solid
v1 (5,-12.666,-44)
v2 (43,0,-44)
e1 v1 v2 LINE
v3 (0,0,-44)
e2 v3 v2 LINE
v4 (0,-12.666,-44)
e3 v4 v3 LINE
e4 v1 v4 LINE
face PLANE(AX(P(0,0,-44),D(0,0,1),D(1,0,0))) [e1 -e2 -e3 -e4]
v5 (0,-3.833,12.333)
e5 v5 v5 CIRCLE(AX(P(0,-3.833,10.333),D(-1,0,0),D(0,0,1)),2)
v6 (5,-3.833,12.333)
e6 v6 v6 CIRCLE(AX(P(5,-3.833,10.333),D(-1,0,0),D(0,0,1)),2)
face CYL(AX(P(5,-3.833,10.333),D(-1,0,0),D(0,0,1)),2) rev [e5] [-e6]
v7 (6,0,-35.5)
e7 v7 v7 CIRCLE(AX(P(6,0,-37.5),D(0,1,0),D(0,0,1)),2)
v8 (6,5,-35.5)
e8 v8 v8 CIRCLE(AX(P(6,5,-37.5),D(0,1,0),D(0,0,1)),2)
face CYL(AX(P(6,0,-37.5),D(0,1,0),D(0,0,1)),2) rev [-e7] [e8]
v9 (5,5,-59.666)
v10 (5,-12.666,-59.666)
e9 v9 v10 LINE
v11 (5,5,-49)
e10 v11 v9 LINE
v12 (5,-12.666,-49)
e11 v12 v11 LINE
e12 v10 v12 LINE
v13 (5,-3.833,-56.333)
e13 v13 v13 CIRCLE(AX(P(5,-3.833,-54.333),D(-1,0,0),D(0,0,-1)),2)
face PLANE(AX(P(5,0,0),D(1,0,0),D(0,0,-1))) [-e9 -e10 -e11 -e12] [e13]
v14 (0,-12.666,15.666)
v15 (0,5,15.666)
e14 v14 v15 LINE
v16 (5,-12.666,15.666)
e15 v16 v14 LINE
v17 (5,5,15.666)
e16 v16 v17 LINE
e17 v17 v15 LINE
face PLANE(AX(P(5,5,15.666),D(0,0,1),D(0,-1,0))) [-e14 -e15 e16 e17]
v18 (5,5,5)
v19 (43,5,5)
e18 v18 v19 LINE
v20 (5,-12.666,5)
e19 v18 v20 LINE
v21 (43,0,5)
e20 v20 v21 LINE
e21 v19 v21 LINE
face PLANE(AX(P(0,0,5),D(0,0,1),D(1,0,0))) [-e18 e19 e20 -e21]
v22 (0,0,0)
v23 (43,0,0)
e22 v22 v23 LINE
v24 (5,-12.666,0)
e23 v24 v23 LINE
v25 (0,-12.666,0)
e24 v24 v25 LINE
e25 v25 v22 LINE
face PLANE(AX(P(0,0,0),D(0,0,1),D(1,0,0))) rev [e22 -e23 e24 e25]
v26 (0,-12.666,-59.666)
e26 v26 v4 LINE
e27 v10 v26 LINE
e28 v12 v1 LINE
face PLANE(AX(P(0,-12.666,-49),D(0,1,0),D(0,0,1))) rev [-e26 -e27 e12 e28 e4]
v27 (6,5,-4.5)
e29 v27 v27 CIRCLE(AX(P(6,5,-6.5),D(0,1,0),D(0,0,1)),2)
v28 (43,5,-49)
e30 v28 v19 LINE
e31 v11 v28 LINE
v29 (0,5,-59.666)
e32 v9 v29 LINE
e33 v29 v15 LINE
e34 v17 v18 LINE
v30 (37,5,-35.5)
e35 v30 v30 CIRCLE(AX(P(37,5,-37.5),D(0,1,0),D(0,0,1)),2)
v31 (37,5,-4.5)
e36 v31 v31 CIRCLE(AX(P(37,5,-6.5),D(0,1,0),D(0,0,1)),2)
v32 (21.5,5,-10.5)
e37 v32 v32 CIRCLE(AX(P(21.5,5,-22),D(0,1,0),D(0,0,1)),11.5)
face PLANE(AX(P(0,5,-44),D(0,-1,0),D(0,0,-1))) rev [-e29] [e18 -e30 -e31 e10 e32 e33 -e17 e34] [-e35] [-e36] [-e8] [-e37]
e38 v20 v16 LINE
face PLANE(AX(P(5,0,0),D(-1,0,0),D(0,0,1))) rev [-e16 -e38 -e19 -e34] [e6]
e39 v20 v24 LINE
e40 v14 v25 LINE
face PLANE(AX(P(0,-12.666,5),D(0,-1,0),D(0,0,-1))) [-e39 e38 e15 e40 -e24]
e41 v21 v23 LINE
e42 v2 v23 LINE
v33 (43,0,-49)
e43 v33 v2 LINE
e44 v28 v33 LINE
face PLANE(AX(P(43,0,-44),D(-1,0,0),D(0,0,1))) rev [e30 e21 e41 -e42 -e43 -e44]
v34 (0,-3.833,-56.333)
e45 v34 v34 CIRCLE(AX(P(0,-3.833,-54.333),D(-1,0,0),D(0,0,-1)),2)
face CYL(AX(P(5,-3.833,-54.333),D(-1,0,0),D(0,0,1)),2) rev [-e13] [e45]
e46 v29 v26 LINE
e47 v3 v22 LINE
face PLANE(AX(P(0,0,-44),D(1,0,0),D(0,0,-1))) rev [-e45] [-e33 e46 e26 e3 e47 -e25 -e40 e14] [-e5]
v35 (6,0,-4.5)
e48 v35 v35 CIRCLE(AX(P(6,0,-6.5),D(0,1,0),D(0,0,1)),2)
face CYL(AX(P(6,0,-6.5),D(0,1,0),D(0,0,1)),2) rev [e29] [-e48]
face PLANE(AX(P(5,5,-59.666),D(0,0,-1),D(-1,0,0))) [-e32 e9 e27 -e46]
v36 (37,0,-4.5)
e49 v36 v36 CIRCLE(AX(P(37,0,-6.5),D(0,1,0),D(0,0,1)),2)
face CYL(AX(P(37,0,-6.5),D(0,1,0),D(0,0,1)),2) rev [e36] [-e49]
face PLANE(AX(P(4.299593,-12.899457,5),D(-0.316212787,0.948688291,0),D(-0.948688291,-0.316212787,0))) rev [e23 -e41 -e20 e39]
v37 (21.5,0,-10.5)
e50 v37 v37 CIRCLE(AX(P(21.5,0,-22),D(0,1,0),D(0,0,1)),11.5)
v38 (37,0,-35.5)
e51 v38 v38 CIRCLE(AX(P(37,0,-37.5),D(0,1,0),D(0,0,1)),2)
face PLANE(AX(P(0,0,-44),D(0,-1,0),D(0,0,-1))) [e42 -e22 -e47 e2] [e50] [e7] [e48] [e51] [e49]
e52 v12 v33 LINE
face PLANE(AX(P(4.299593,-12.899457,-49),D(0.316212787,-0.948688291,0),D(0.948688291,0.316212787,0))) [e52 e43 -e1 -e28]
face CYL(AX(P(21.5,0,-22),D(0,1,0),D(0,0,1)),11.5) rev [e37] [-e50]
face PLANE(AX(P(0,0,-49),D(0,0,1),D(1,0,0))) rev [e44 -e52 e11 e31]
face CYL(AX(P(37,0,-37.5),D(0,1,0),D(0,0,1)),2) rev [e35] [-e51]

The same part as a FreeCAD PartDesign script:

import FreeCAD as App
import Part
import Sketcher
Q = App.Units.Quantity


def add_polygon(sketch, points):
    """Adds a closed chain of lines whose ends are joined by coincident constraints."""
    first, n = sketch.GeometryCount, len(points)
    for a, b in zip(points, points[1:] + points[:1]):
        sketch.addGeometry(Part.LineSegment(App.Vector(*a, 0), App.Vector(*b, 0)), False)
    for i in range(n):
        sketch.addConstraint(Sketcher.Constraint("Coincident", first + i, 2, first + (i + 1) % n, 1))

doc = App.newDocument("Part")
body = doc.addObject("PartDesign::Body", "Body")

# Sketch on XY plane
sketch1 = doc.addObject("Sketcher::SketchObject", "Sketch")
body.addObject(sketch1)
sketch1.AttachmentSupport = (doc.XY_Plane, [""])
sketch1.MapMode = "FlatFace"
add_polygon(sketch1, [(0, 5), (0, 0), (43, 0), (43, 5)])  # lines 0-3
sketch1.addConstraint([
    Sketcher.Constraint("Vertical", 0),
    Sketcher.Constraint("Horizontal", 1),
    Sketcher.Constraint("Vertical", 2),
    Sketcher.Constraint("Horizontal", 3),
    Sketcher.Constraint("Coincident", 0, 2, -1, 1),
    Sketcher.Constraint("DistanceX", 1, 1, 1, 2, Q("43 mm")),
    Sketcher.Constraint("DistanceY", 0, 2, 0, 1, Q("5 mm")),
])
pad1 = doc.addObject("PartDesign::Pad", "Pad")
body.addObject(pad1)
pad1.Profile = sketch1
pad1.Length = 44
pad1.Reversed = True

# Sketch on XZ plane
sketch2 = doc.addObject("Sketcher::SketchObject", "Sketch001")
body.addObject(sketch2)
sketch2.AttachmentSupport = (doc.XZ_Plane, [""])
sketch2.MapMode = "FlatFace"
sketch2.AttachmentOffset = App.Placement(App.Vector(0, 0, -5), App.Rotation())
sketch2.addGeometry([
    Part.Circle(App.Vector(21.5, -22, 0), App.Vector(0, 0, 1), 11.5),  # 0
    Part.Circle(App.Vector(37, -37.5, 0), App.Vector(0, 0, 1), 2),  # 1
    Part.Circle(App.Vector(6, -37.5, 0), App.Vector(0, 0, 1), 2),  # 2
    Part.Circle(App.Vector(6, -6.5, 0), App.Vector(0, 0, 1), 2),  # 3
    Part.Circle(App.Vector(37, -6.5, 0), App.Vector(0, 0, 1), 2),  # 4
], False)
sketch2.addConstraint([
    Sketcher.Constraint("Equal", 1, 2),
    Sketcher.Constraint("Equal", 2, 3),
    Sketcher.Constraint("Equal", 3, 4),
    Sketcher.Constraint("Horizontal", 1, 3, 2, 3),
    Sketcher.Constraint("Horizontal", 3, 3, 4, 3),
    Sketcher.Constraint("Vertical", 2, 3, 3, 3),
    Sketcher.Constraint("Vertical", 1, 3, 4, 3),
    Sketcher.Constraint("Diameter", 0, Q("23 mm")),
    Sketcher.Constraint("Diameter", 1, Q("4 mm")),
    Sketcher.Constraint("DistanceY", 0, 3, -1, 1, Q("22 mm")),
    Sketcher.Constraint("DistanceX", -1, 1, 1, 3, Q("37 mm")),
    Sketcher.Constraint("DistanceX", -1, 1, 2, 3, Q("6 mm")),
    Sketcher.Constraint("DistanceY", 2, 3, 3, 3, Q("31 mm")),
    Sketcher.Constraint("DistanceX", -1, 1, 0, 3, Q("21.5 mm")),
    Sketcher.Constraint("DistanceY", 1, 3, -1, 1, Q("37.5 mm")),
])
pocket1 = doc.addObject("PartDesign::Pocket", "Pocket")
body.addObject(pocket1)
pocket1.Profile = sketch2
pocket1.Type = "ThroughAll"
pocket1.Reversed = True

# Sketch on XY plane
sketch3 = doc.addObject("Sketcher::SketchObject", "Sketch002")
body.addObject(sketch3)
sketch3.AttachmentSupport = (doc.XY_Plane, [""])
sketch3.MapMode = "FlatFace"
add_polygon(sketch3, [(5, -12.666), (43, 0), (43, 5), (0, 5), (0, -12.666)])  # lines 0-4
sketch3.addConstraint([
    Sketcher.Constraint("Vertical", 1),
    Sketcher.Constraint("Horizontal", 2),
    Sketcher.Constraint("Vertical", 3),
    Sketcher.Constraint("Horizontal", 4),
    Sketcher.Constraint("PointOnObject", 0, 2, -1),
    Sketcher.Constraint("PointOnObject", 2, 2, -2),
    Sketcher.Constraint("Equal", 4, 1),
    Sketcher.Constraint("DistanceX", 2, 2, 2, 1, Q("43 mm")),
    Sketcher.Constraint("DistanceX", 4, 1, 4, 2, Q("5 mm")),
    Sketcher.Constraint("DistanceY", 3, 2, 3, 1, Q("17.666 mm")),
])
pad2 = doc.addObject("PartDesign::Pad", "Pad001")
body.addObject(pad2)
pad2.Profile = sketch3
pad2.Length = 5

# Sketch on XY plane
sketch4 = doc.addObject("Sketcher::SketchObject", "Sketch003")
body.addObject(sketch4)
sketch4.AttachmentSupport = (doc.XY_Plane, [""])
sketch4.MapMode = "FlatFace"
sketch4.AttachmentOffset = App.Placement(App.Vector(0, 0, -44), App.Rotation())
add_polygon(sketch4, [(0, 5), (0, -12.666), (5, -12.666), (43, 0), (43, 5)])  # lines 0-4
sketch4.addConstraint([
    Sketcher.Constraint("Vertical", 0),
    Sketcher.Constraint("Horizontal", 1),
    Sketcher.Constraint("Vertical", 3),
    Sketcher.Constraint("Horizontal", 4),
    Sketcher.Constraint("PointOnObject", 0, 2, -2),
    Sketcher.Constraint("PointOnObject", 2, 2, -1),
    Sketcher.Constraint("Equal", 1, 3),
    Sketcher.Constraint("DistanceX", 1, 1, 1, 2, Q("5 mm")),
    Sketcher.Constraint("DistanceX", 4, 2, 4, 1, Q("43 mm")),
    Sketcher.Constraint("DistanceY", 0, 2, 0, 1, Q("17.666 mm")),
])
pad3 = doc.addObject("PartDesign::Pad", "Pad002")
body.addObject(pad3)
pad3.Profile = sketch4
pad3.Length = 5
pad3.Reversed = True

# Sketch on YZ plane
sketch5 = doc.addObject("Sketcher::SketchObject", "Sketch004")
body.addObject(sketch5)
sketch5.AttachmentSupport = (doc.YZ_Plane, [""])
sketch5.MapMode = "FlatFace"
add_polygon(sketch5, [(5, 5), (-12.666, 5), (-12.666, 15.666), (5, 15.666)])  # lines 0-3
sketch5.addGeometry(Part.Circle(App.Vector(-3.833, 10.333, 0), App.Vector(0, 0, 1), 2), False)  # 4
add_polygon(sketch5, [(5, -59.666), (-12.666, -59.666), (-12.666, -49), (5, -49)])  # lines 5-8
sketch5.addGeometry(Part.Circle(App.Vector(-3.833, -54.333, 0), App.Vector(0, 0, 1), 2), False)  # 9
sketch5.addConstraint([
    Sketcher.Constraint("Horizontal", 0),
    Sketcher.Constraint("Vertical", 1),
    Sketcher.Constraint("Horizontal", 2),
    Sketcher.Constraint("Vertical", 3),
    Sketcher.Constraint("Horizontal", 5),
    Sketcher.Constraint("Vertical", 6),
    Sketcher.Constraint("Horizontal", 7),
    Sketcher.Constraint("Vertical", 8),
    Sketcher.Constraint("Equal", 4, 9),
    Sketcher.Constraint("Vertical", 4, 3, 9, 3),
    Sketcher.Constraint("Vertical", 1, 2, 5, 2),
    Sketcher.Constraint("Vertical", 3, 2, 7, 2),
    Sketcher.Constraint("Equal", 3, 6),
    Sketcher.Constraint("Diameter", 4, Q("4 mm")),
    Sketcher.Constraint("DistanceY", -1, 1, 0, 2, Q("5 mm")),
    Sketcher.Constraint("DistanceX", -1, 1, 2, 2, Q("5 mm")),
    Sketcher.Constraint("DistanceY", 6, 2, -1, 1, Q("49 mm")),
    Sketcher.Constraint("DistanceX", 0, 2, 0, 1, Q("17.666 mm")),
    Sketcher.Constraint("DistanceY", 1, 1, 1, 2, Q("10.666 mm")),
    Sketcher.Constraint("DistanceX", 4, 3, -1, 1, Q("3.833 mm")),
    Sketcher.Constraint("DistanceY", -1, 1, 4, 3, Q("10.333 mm")),
    Sketcher.Constraint("DistanceY", 9, 3, -1, 1, Q("54.333 mm")),
])
pad4 = doc.addObject("PartDesign::Pad", "Pad003")
body.addObject(pad4)
pad4.Profile = sketch5
pad4.Length = 5

doc.recompute()
